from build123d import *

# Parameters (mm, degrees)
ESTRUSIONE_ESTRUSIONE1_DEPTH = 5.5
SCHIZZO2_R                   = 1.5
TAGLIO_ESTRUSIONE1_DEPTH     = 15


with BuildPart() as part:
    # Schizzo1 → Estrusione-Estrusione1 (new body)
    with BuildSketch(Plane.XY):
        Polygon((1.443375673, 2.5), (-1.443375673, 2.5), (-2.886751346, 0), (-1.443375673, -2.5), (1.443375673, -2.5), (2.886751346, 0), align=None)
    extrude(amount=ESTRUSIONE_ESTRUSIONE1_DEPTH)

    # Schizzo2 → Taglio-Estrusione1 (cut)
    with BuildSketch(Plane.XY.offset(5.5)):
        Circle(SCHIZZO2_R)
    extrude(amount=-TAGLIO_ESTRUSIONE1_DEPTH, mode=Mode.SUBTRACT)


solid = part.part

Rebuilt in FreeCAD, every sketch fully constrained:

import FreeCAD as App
import Part
import Sketcher
from FreeCAD import Vector
Q = App.Units.Quantity

doc = App.newDocument("Part")
body = doc.addObject("PartDesign::Body", "Body")

# Sketch on XY plane
sketch1 = doc.addObject("Sketcher::SketchObject", "Sketch")
body.addObject(sketch1)
sketch1.AttachmentSupport = (doc.XY_Plane, [""])
sketch1.MapMode = "FlatFace"
sketch1.addGeometry([
    Part.LineSegment(Vector(1.443376, 2.5, 0), Vector(-1.443376, 2.5, 0)),  # 0
    Part.LineSegment(Vector(-1.443376, 2.5, 0), Vector(-2.886751, 0, 0)),  # 1
    Part.LineSegment(Vector(-2.886751, 0, 0), Vector(-1.443376, -2.5, 0)),  # 2
    Part.LineSegment(Vector(-1.443376, -2.5, 0), Vector(1.443376, -2.5, 0)),  # 3
    Part.LineSegment(Vector(1.443376, -2.5, 0), Vector(2.886751, 0, 0)),  # 4
    Part.LineSegment(Vector(2.886751, 0, 0), Vector(1.443376, 2.5, 0)),  # 5
], False)
sketch1.addConstraint([
    Sketcher.Constraint("Coincident", 0, 2, 1, 1),
    Sketcher.Constraint("Coincident", 1, 2, 2, 1),
    Sketcher.Constraint("Coincident", 2, 2, 3, 1),
    Sketcher.Constraint("Coincident", 3, 2, 4, 1),
    Sketcher.Constraint("Coincident", 4, 2, 5, 1),
    Sketcher.Constraint("Coincident", 5, 2, 0, 1),
    Sketcher.Constraint("Horizontal", 0),
    Sketcher.Constraint("Horizontal", 3),
    Sketcher.Constraint("Symmetric", 0, 2, 3, 2, -1, 1),
    Sketcher.Constraint("Symmetric", 1, 2, 4, 2, -1, 1),
    Sketcher.Constraint("PointOnObject", 1, 2, -1),
    Sketcher.Constraint("Parallel", 2, 5),
    Sketcher.Constraint("Vertical", 0, 2, 2, 2),
    Sketcher.Constraint("Angle", 1, Q("-120 deg")),
    Sketcher.Constraint("DistanceY", 2, 2, 0, 2, 5.0),
    Sketcher.Constraint("DistanceX", 0, 2, 0, 1, 2.886751),
])
pad1 = doc.addObject("PartDesign::Pad", "Pad")
body.addObject(pad1)
pad1.Profile = sketch1
pad1.Length = 5.5

# Sketch on XY plane
sketch2 = doc.addObject("Sketcher::SketchObject", "Sketch001")
body.addObject(sketch2)
sketch2.AttachmentSupport = (doc.XY_Plane, [""])
sketch2.MapMode = "FlatFace"
sketch2.AttachmentOffset = App.Placement(Vector(0, 0, 5.5), App.Rotation())
sketch2.addGeometry(Part.Circle(Vector(0, 0, 0), Vector(0, 0, 1), 1.5), False)
sketch2.addConstraint([
    Sketcher.Constraint("Coincident", 0, 3, -1, 1),
    Sketcher.Constraint("Diameter", 0, 3.0),
])
pocket1 = doc.addObject("PartDesign::Pocket", "Pocket")
body.addObject(pocket1)
pocket1.Profile = sketch2
pocket1.Length = 15

doc.recompute()
